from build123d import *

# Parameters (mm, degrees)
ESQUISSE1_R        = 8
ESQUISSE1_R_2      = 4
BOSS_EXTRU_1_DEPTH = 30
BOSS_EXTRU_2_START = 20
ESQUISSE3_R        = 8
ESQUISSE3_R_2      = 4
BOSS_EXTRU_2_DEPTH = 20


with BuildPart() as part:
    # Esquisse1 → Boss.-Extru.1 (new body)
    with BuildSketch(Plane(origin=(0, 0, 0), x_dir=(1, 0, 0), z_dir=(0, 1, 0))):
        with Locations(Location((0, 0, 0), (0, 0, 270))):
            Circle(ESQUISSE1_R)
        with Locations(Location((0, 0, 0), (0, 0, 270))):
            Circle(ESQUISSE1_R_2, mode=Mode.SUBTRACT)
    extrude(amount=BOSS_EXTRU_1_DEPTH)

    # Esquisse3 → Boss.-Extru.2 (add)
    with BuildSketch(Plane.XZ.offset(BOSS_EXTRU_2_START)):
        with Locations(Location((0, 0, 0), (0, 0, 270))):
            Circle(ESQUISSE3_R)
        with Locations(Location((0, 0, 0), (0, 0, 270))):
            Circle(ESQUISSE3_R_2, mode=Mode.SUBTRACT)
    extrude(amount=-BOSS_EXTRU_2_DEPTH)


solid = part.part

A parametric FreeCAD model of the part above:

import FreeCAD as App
import Part
import Sketcher

V = App.Vector
Q = App.Units.Quantity

doc = App.newDocument("Part")
params = doc.addObject("Spreadsheet::Sheet", "Params")
for row, (alias, value) in enumerate([
    ("sketch1_diameter", "16 mm"),
    ("sketch1_diameter2", "8 mm"),
    ("pad1_length", "30 mm"),
    ("sketch2_diameter", "16 mm"),
    ("sketch2_diameter2", "8 mm"),
    ("pad2_length", "20 mm"),
], start=1):
    params.set(f"A{row}", alias)
    params.set(f"B{row}", "=" + value)
    params.setAlias(f"B{row}", alias)

body = doc.addObject("PartDesign::Body", "Body")

sketch1 = doc.addObject("Sketcher::SketchObject", "Sketch")
body.addObject(sketch1)
sketch1.AttachmentSupport = (doc.XZ_Plane, [""])
sketch1.MapMode = "FlatFace"
sketch1.addGeometry(Part.Circle(V(0, 0, 0), V(0, 0, 1), 8), False)
sketch1.addGeometry(Part.Circle(V(0, 0, 0), V(0, 0, 1), 4), False)
sketch1.addConstraint(Sketcher.Constraint("Coincident", 0, 3, -1, 1))
sketch1.addConstraint(Sketcher.Constraint("Coincident", 1, 3, -1, 1))
sketch1.addConstraint(Sketcher.Constraint("Diameter", 0, Q("16 mm")))
sketch1.addConstraint(Sketcher.Constraint("Diameter", 1, Q("8 mm")))
sketch1.setExpression("Constraints[2]", "Params.sketch1_diameter")
sketch1.setExpression("Constraints[3]", "Params.sketch1_diameter2")
pad1 = doc.addObject("PartDesign::Pad", "Pad")
body.addObject(pad1)
pad1.Profile = sketch1
pad1.setExpression("Length", "Params.pad1_length")
pad1.Reversed = True

sketch2 = doc.addObject("Sketcher::SketchObject", "Sketch001")
body.addObject(sketch2)
sketch2.AttachmentSupport = (doc.XZ_Plane, [""])
sketch2.MapMode = "FlatFace"
sketch2.AttachmentOffset = App.Placement(V(0, 0, 20), App.Rotation())
sketch2.addGeometry(Part.Circle(V(0, 0, 0), V(0, 0, 1), 8), False)
sketch2.addGeometry(Part.Circle(V(0, 0, 0), V(0, 0, 1), 4), False)
sketch2.addConstraint(Sketcher.Constraint("Coincident", 0, 3, -1, 1))
sketch2.addConstraint(Sketcher.Constraint("Coincident", 1, 3, -1, 1))
sketch2.addConstraint(Sketcher.Constraint("Diameter", 0, Q("16 mm")))
sketch2.addConstraint(Sketcher.Constraint("Diameter", 1, Q("8 mm")))
sketch2.setExpression("Constraints[2]", "Params.sketch2_diameter")
sketch2.setExpression("Constraints[3]", "Params.sketch2_diameter2")
pad2 = doc.addObject("PartDesign::Pad", "Pad001")
body.addObject(pad2)
pad2.Profile = sketch2
pad2.setExpression("Length", "Params.pad2_length")
pad2.Reversed = True

doc.recompute()
